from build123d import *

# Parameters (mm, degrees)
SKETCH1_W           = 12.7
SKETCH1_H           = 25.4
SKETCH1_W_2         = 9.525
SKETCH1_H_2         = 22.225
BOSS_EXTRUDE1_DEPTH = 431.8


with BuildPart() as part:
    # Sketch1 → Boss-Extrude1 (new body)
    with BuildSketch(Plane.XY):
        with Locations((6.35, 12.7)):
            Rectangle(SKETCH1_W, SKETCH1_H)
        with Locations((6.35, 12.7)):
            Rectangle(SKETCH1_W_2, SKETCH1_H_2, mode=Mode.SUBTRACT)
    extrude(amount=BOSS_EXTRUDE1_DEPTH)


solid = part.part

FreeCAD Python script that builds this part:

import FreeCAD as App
import Part
import Sketcher
from FreeCAD import Vector
Q = App.Units.Quantity


def add_polygon(sketch, points):
    """Adds a closed chain of lines whose ends are joined by coincident constraints."""
    first, n = sketch.GeometryCount, len(points)
    for a, b in zip(points, points[1:] + points[:1]):
        sketch.addGeometry(Part.LineSegment(App.Vector(*a, 0), App.Vector(*b, 0)), False)
    for i in range(n):
        sketch.addConstraint(Sketcher.Constraint("Coincident", first + i, 2, first + (i + 1) % n, 1))

doc = App.newDocument("Part")
body = doc.addObject("PartDesign::Body", "Body")

# Sketch on XY plane
sketch1 = body.newObject("Sketcher::SketchObject", "Sketch")
sketch1.AttachmentSupport = (doc.getObject("XY_Plane"), [""])
sketch1.MapMode = "FlatFace"
add_polygon(sketch1, [(0, 25), (0, 0), (13, 0), (13, 25)])  # lines 0-3
add_polygon(sketch1, [(11, 2), (2, 2), (2, 24), (11, 24)])  # lines 4-7
sketch1.addConstraint(Sketcher.Constraint("Vertical", 0))
sketch1.addConstraint(Sketcher.Constraint("Horizontal", 1))
sketch1.addConstraint(Sketcher.Constraint("Vertical", 2))
sketch1.addConstraint(Sketcher.Constraint("Horizontal", 3))
sketch1.addConstraint(Sketcher.Constraint("Horizontal", 4))
sketch1.addConstraint(Sketcher.Constraint("Vertical", 5))
sketch1.addConstraint(Sketcher.Constraint("Horizontal", 6))
sketch1.addConstraint(Sketcher.Constraint("Vertical", 7))
sketch1.addConstraint(Sketcher.Constraint("Coincident", 0, 2, -1, 1))
sketch1.addConstraint(Sketcher.Constraint("DistanceY", 0, 2, 0, 1, Q("1 in")))
sketch1.addConstraint(Sketcher.Constraint("DistanceX", 1, 1, 1, 2, Q("0.5 in")))
sketch1.addConstraint(Sketcher.Constraint("DistanceX", 4, 2, 4, 1, Q("0.375 in")))
sketch1.addConstraint(Sketcher.Constraint("DistanceY", 5, 1, 5, 2, Q("0.875 in")))
sketch1.addConstraint(Sketcher.Constraint("DistanceX", -1, 1, 4, 2, Q("0.0625 in")))
sketch1.addConstraint(Sketcher.Constraint("DistanceY", -1, 1, 4, 2, Q("0.0625 in")))
pad1 = body.newObject("PartDesign::Pad", "Pad")
pad1.Profile = sketch1
pad1.Length = Q("17 in")

doc.recompute()
